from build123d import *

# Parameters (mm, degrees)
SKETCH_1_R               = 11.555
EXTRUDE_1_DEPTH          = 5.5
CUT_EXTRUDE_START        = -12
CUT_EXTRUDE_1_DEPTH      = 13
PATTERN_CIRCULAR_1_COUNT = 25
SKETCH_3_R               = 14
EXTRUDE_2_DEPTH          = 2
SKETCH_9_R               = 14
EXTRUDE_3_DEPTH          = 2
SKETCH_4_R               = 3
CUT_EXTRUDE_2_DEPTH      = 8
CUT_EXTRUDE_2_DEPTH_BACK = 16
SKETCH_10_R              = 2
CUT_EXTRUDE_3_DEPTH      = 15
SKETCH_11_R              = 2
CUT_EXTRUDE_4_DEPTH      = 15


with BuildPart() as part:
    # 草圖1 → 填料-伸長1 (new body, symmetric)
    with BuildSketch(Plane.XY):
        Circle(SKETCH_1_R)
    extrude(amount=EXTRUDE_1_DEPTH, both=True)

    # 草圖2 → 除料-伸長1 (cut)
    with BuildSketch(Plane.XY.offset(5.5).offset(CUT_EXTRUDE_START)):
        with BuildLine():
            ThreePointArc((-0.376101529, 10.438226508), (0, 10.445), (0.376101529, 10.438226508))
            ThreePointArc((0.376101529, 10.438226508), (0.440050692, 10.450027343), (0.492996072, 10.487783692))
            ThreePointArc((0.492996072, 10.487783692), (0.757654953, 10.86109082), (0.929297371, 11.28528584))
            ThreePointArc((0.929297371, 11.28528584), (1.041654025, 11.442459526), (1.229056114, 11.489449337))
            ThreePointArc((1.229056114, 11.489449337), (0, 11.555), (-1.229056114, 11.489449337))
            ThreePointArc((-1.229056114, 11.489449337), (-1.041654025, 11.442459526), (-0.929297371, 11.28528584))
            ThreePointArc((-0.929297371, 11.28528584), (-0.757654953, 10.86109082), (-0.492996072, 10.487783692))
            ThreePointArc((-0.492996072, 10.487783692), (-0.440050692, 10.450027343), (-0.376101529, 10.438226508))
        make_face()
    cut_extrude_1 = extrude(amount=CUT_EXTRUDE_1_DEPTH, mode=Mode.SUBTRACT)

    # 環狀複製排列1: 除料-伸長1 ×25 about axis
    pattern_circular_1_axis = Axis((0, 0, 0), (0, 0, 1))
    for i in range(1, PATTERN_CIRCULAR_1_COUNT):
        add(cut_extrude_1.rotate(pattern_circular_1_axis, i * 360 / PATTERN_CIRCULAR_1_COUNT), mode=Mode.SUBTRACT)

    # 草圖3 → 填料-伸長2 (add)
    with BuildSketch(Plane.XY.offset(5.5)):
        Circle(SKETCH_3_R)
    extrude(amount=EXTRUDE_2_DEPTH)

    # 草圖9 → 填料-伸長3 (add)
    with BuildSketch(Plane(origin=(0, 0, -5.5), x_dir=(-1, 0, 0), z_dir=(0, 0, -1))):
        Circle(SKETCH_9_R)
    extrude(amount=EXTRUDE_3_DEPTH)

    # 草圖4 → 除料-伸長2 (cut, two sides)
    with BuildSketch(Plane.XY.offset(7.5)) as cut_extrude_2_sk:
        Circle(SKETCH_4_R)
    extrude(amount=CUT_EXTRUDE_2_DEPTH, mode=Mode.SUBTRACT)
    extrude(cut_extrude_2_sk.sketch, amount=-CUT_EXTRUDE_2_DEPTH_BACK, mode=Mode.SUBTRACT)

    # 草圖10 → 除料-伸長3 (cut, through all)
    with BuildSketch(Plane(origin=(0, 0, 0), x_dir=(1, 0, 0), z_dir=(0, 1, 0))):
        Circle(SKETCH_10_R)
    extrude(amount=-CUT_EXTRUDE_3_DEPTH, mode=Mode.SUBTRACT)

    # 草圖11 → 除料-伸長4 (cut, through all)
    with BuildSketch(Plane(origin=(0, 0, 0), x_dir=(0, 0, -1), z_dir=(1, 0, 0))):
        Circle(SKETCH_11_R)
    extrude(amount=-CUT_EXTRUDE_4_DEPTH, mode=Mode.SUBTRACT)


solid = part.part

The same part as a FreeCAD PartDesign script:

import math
import FreeCAD as App
import Part
import Sketcher
from FreeCAD import Vector
Q = App.Units.Quantity

doc = App.newDocument("Part")
params = doc.addObject("Spreadsheet::Sheet", "Params")
for row, (alias, value) in enumerate([
    ("sketch1_diameter", "23.11 mm"),
    ("pad1_length", "11 mm"),
    ("sketch2_radius", "0.15 mm"),
    ("sketch2_radius2", "0.28 mm"),
    ("pocket1_length", "13 mm"),
    ("sketch3_diameter", "28 mm"),
    ("pad2_length", "2 mm"),
    ("sketch4_diameter", "28 mm"),
    ("pad3_length", "2 mm"),
    ("sketch5_diameter", "6 mm"),
    ("sketch6_diameter", "4 mm"),
    ("sketch7_diameter", "4 mm"),
], start=1):
    params.set(f"A{row}", alias)
    params.set(f"B{row}", "=" + value)
    params.setAlias(f"B{row}", alias)

body = doc.addObject("PartDesign::Body", "Body")

# Sketch on XY plane
sketch1 = doc.addObject("Sketcher::SketchObject", "Sketch")
body.addObject(sketch1)
sketch1.AttachmentSupport = (doc.XY_Plane, [""])
sketch1.MapMode = "FlatFace"
sketch1.addGeometry(Part.Circle(Vector(0, 0, 0), Vector(0, 0, 1), 11.555), False)
sketch1.addConstraint([
    Sketcher.Constraint("Coincident", 0, 3, -1, 1),
    Sketcher.Constraint("Diameter", 0, Q("23.11 mm")),
])
sketch1.setExpression("Constraints[1]", "Params.sketch1_diameter")
pad1 = doc.addObject("PartDesign::Pad", "Pad")
body.addObject(pad1)
pad1.Profile = sketch1
pad1.setExpression("Length", "Params.pad1_length")
pad1.Midplane = True

# Sketch on XY plane
sketch2 = doc.addObject("Sketcher::SketchObject", "Sketch001")
body.addObject(sketch2)
sketch2.AttachmentSupport = (doc.XY_Plane, [""])
sketch2.MapMode = "FlatFace"
sketch2.AttachmentOffset = App.Placement(Vector(0, 0, -6.5), App.Rotation())
sketch2.addGeometry([
    Part.ArcOfCircle(Part.Circle(Vector(0, 0.000001, 0), Vector(0, 0, 1), 10.444999), math.radians(87.936459), math.radians(92.063541)),  # 0
    Part.ArcOfCircle(Part.Circle(Vector(0.381503, 10.588129, 0), Vector(0, 0, 1), 0.15), math.radians(-92.06354), math.radians(-41.987641)),  # 1
    Part.ArcOfCircle(Part.Circle(Vector(-0.975, 11.809, 0), Vector(0, 0, 1), 1.975), math.radians(-41.98764), math.radians(-15.377157)),  # 2
    Part.ArcOfCircle(Part.Circle(Vector(1.199274, 11.211038, 0), Vector(0, 0, 1), 0.28), math.radians(83.894142), math.radians(164.622843)),  # 3
    Part.ArcOfCircle(Part.Circle(Vector(0, 0, 0), Vector(0, 0, 1), 11.555), math.radians(83.894142), math.radians(96.105858)),  # 4
    Part.ArcOfCircle(Part.Circle(Vector(-1.199274, 11.211038, 0), Vector(0, 0, 1), 0.28), math.radians(15.377157), math.radians(96.105858)),  # 5
    Part.ArcOfCircle(Part.Circle(Vector(0.975, 11.809, 0), Vector(0, 0, 1), 1.975), math.radians(-164.622843), math.radians(-138.01236)),  # 6
    Part.ArcOfCircle(Part.Circle(Vector(-0.381503, 10.588129, 0), Vector(0, 0, 1), 0.15), math.radians(-138.012359), math.radians(-87.93646)),  # 7
], False)
sketch2.addConstraint([
    Sketcher.Constraint("Tangent", 0, 1, 1, 1),
    Sketcher.Constraint("Tangent", 1, 2, 2, 1),
    Sketcher.Constraint("Tangent", 2, 2, 3, 2),
    Sketcher.Constraint("Tangent", 3, 1, 4, 1),
    Sketcher.Constraint("Tangent", 4, 2, 5, 2),
    Sketcher.Constraint("Tangent", 5, 1, 6, 1),
    Sketcher.Constraint("Tangent", 6, 2, 7, 1),
    Sketcher.Constraint("Tangent", 7, 2, 0, 2),
    Sketcher.Constraint("Coincident", 0, 3, -1, 1),
    Sketcher.Constraint("Coincident", 4, 3, -1, 1),
    Sketcher.Constraint("Equal", 3, 5),
    Sketcher.Constraint("Equal", 2, 6),
    Sketcher.Constraint("Equal", 1, 7),
    Sketcher.Constraint("Symmetric", 2, 3, 6, 3, -2),
    Sketcher.Constraint("Radius", 1, Q("0.15 mm")),
    Sketcher.Constraint("Radius", 3, Q("0.28 mm")),
    Sketcher.Constraint("Radius", 0, Q("10.444999 mm")),
    Sketcher.Constraint("Radius", 2, Q("1.975 mm")),
    Sketcher.Constraint("Radius", 4, Q("11.555 mm")),
    Sketcher.Constraint("DistanceX", 2, 3, 6, 3, Q("1.95 mm")),
    Sketcher.Constraint("DistanceY", -1, 1, 2, 3, Q("11.809 mm")),
])
sketch2.setExpression("Constraints[14]", "Params.sketch2_radius")
sketch2.setExpression("Constraints[15]", "Params.sketch2_radius2")
pocket1 = doc.addObject("PartDesign::Pocket", "Pocket")
body.addObject(pocket1)
pocket1.Profile = sketch2
pocket1.setExpression("Length", "Params.pocket1_length")
pocket1.Reversed = True
doc.recompute()

polarpattern = doc.addObject("PartDesign::PolarPattern", "PolarPattern")
body.addObject(polarpattern)
polarpattern.Originals = [pocket1]
polarpattern.Axis = (doc.Z_Axis, [""])
polarpattern.Angle = 360
polarpattern.Occurrences = 25
body.Tip = polarpattern

# Sketch on XY plane
sketch3 = doc.addObject("Sketcher::SketchObject", "Sketch002")
body.addObject(sketch3)
sketch3.AttachmentSupport = (doc.XY_Plane, [""])
sketch3.MapMode = "FlatFace"
sketch3.AttachmentOffset = App.Placement(Vector(0, 0, 5.5), App.Rotation())
sketch3.addGeometry(Part.Circle(Vector(0, 0, 0), Vector(0, 0, 1), 14), False)
sketch3.addConstraint([
    Sketcher.Constraint("Coincident", 0, 3, -1, 1),
    Sketcher.Constraint("Diameter", 0, Q("28 mm")),
])
sketch3.setExpression("Constraints[1]", "Params.sketch3_diameter")
pad2 = doc.addObject("PartDesign::Pad", "Pad001")
body.addObject(pad2)
pad2.Profile = sketch3
pad2.setExpression("Length", "Params.pad2_length")

# Sketch on XY plane
sketch4 = doc.addObject("Sketcher::SketchObject", "Sketch003")
body.addObject(sketch4)
sketch4.AttachmentSupport = (doc.XY_Plane, [""])
sketch4.MapMode = "FlatFace"
sketch4.AttachmentOffset = App.Placement(Vector(0, 0, -5.5), App.Rotation())
sketch4.addGeometry(Part.Circle(Vector(0, 0, 0), Vector(0, 0, 1), 14), False)
sketch4.addConstraint([
    Sketcher.Constraint("Coincident", 0, 3, -1, 1),
    Sketcher.Constraint("Diameter", 0, Q("28 mm")),
])
sketch4.setExpression("Constraints[1]", "Params.sketch4_diameter")
pad3 = doc.addObject("PartDesign::Pad", "Pad002")
body.addObject(pad3)
pad3.Profile = sketch4
pad3.setExpression("Length", "Params.pad3_length")
pad3.Reversed = True

# Sketch on XY plane
sketch5 = doc.addObject("Sketcher::SketchObject", "Sketch004")
body.addObject(sketch5)
sketch5.AttachmentSupport = (doc.XY_Plane, [""])
sketch5.MapMode = "FlatFace"
sketch5.AttachmentOffset = App.Placement(Vector(0, 0, 7.5), App.Rotation())
sketch5.addGeometry(Part.Circle(Vector(0, 0, 0), Vector(0, 0, 1), 3), False)
sketch5.addConstraint([
    Sketcher.Constraint("Coincident", 0, 3, -1, 1),
    Sketcher.Constraint("Diameter", 0, Q("6 mm")),
])
sketch5.setExpression("Constraints[1]", "Params.sketch5_diameter")
pocket2 = doc.addObject("PartDesign::Pocket", "Pocket001")
body.addObject(pocket2)
pocket2.Profile = sketch5
pocket2.Type = "ThroughAll"
pocket2.Midplane = True

# Sketch on XZ plane
sketch6 = doc.addObject("Sketcher::SketchObject", "Sketch005")
body.addObject(sketch6)
sketch6.AttachmentSupport = (doc.XZ_Plane, [""])
sketch6.MapMode = "FlatFace"
sketch6.addGeometry(Part.Circle(Vector(0, 0, 0), Vector(0, 0, 1), 2), False)
sketch6.addConstraint([
    Sketcher.Constraint("Coincident", 0, 3, -1, 1),
    Sketcher.Constraint("Diameter", 0, Q("4 mm")),
])
sketch6.setExpression("Constraints[1]", "Params.sketch6_diameter")
pocket3 = doc.addObject("PartDesign::Pocket", "Pocket002")
body.addObject(pocket3)
pocket3.Profile = sketch6
pocket3.Type = "ThroughAll"
pocket3.Reversed = True

# Sketch on YZ plane
sketch7 = doc.addObject("Sketcher::SketchObject", "Sketch006")
body.addObject(sketch7)
sketch7.AttachmentSupport = (doc.YZ_Plane, [""])
sketch7.MapMode = "FlatFace"
sketch7.addGeometry(Part.Circle(Vector(0, 0, 0), Vector(0, 0, 1), 2), False)
sketch7.addConstraint([
    Sketcher.Constraint("Coincident", 0, 3, -1, 1),
    Sketcher.Constraint("Diameter", 0, Q("4 mm")),
])
sketch7.setExpression("Constraints[1]", "Params.sketch7_diameter")
pocket4 = doc.addObject("PartDesign::Pocket", "Pocket003")
body.addObject(pocket4)
pocket4.Profile = sketch7
pocket4.Type = "ThroughAll"

doc.recompute()
